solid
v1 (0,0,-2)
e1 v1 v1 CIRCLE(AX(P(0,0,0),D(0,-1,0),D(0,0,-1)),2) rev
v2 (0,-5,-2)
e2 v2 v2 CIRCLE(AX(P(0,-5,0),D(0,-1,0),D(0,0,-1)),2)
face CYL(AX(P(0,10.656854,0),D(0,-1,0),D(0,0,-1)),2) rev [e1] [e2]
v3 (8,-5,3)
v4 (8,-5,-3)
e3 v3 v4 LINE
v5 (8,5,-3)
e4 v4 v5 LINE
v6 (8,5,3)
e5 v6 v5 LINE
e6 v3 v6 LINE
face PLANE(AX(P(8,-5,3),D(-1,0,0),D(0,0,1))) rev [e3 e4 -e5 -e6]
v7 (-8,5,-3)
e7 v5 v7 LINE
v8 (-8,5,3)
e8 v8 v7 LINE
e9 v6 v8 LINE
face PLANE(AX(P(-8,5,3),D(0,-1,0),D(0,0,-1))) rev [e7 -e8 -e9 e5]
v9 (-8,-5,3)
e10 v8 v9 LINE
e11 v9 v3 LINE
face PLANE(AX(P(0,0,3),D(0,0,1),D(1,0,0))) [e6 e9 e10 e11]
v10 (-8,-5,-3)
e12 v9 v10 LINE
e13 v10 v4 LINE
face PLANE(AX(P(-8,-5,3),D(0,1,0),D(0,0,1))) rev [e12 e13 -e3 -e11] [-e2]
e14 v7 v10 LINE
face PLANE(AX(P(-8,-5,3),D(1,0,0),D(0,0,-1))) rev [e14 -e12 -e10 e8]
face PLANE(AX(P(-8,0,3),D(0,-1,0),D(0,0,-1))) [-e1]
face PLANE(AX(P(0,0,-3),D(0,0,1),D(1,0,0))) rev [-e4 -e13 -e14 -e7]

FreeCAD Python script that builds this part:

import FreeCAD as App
import Part
import Sketcher
Q = App.Units.Quantity


def add_polygon(sketch, points):
    """Adds a closed chain of lines whose ends are joined by coincident constraints."""
    first, n = sketch.GeometryCount, len(points)
    for a, b in zip(points, points[1:] + points[:1]):
        sketch.addGeometry(Part.LineSegment(App.Vector(*a, 0), App.Vector(*b, 0)), False)
    for i in range(n):
        sketch.addConstraint(Sketcher.Constraint("Coincident", first + i, 2, first + (i + 1) % n, 1))

doc = App.newDocument("Part")
body = doc.addObject("PartDesign::Body", "Body")

# Sketch on XY plane
sketch1 = body.newObject("Sketcher::SketchObject", "Sketch")
sketch1.AttachmentSupport = (doc.getObject("XY_Plane"), [""])
sketch1.MapMode = "FlatFace"
add_polygon(sketch1, [(-8, 5), (-8, -5), (8, -5), (8, 5)])  # lines 0-3
sketch1.addConstraint([
    Sketcher.Constraint("Vertical", 0),
    Sketcher.Constraint("Horizontal", 1),
    Sketcher.Constraint("Vertical", 2),
    Sketcher.Constraint("Horizontal", 3),
    Sketcher.Constraint("Symmetric", 0, 2, 2, 2, -1, 1),
    Sketcher.Constraint("DistanceX", 1, 1, 1, 2, Q("16 mm")),
    Sketcher.Constraint("DistanceY", 0, 2, 0, 1, Q("10 mm")),
])
pad1 = body.newObject("PartDesign::Pad", "Pad")
pad1.Profile = sketch1
pad1.Length = 6
pad1.Midplane = True

# Sketch on XZ plane
sketch2 = body.newObject("Sketcher::SketchObject", "Sketch001")
sketch2.AttachmentSupport = (doc.getObject("XZ_Plane"), [""])
sketch2.MapMode = "FlatFace"
sketch2.AttachmentOffset = App.Placement(App.Vector(0, 0, 5), App.Rotation())
sketch2.addGeometry(Part.Circle(App.Vector(0, 0, 0), App.Vector(0, 0, 1), 2), False)
sketch2.addConstraint([
    Sketcher.Constraint("Coincident", 0, 3, -1, 1),
    Sketcher.Constraint("Diameter", 0, Q("4 mm")),
])
pocket1 = body.newObject("PartDesign::Pocket", "Pocket")
pocket1.Profile = sketch2
pocket1.Length = 5

doc.recompute()
